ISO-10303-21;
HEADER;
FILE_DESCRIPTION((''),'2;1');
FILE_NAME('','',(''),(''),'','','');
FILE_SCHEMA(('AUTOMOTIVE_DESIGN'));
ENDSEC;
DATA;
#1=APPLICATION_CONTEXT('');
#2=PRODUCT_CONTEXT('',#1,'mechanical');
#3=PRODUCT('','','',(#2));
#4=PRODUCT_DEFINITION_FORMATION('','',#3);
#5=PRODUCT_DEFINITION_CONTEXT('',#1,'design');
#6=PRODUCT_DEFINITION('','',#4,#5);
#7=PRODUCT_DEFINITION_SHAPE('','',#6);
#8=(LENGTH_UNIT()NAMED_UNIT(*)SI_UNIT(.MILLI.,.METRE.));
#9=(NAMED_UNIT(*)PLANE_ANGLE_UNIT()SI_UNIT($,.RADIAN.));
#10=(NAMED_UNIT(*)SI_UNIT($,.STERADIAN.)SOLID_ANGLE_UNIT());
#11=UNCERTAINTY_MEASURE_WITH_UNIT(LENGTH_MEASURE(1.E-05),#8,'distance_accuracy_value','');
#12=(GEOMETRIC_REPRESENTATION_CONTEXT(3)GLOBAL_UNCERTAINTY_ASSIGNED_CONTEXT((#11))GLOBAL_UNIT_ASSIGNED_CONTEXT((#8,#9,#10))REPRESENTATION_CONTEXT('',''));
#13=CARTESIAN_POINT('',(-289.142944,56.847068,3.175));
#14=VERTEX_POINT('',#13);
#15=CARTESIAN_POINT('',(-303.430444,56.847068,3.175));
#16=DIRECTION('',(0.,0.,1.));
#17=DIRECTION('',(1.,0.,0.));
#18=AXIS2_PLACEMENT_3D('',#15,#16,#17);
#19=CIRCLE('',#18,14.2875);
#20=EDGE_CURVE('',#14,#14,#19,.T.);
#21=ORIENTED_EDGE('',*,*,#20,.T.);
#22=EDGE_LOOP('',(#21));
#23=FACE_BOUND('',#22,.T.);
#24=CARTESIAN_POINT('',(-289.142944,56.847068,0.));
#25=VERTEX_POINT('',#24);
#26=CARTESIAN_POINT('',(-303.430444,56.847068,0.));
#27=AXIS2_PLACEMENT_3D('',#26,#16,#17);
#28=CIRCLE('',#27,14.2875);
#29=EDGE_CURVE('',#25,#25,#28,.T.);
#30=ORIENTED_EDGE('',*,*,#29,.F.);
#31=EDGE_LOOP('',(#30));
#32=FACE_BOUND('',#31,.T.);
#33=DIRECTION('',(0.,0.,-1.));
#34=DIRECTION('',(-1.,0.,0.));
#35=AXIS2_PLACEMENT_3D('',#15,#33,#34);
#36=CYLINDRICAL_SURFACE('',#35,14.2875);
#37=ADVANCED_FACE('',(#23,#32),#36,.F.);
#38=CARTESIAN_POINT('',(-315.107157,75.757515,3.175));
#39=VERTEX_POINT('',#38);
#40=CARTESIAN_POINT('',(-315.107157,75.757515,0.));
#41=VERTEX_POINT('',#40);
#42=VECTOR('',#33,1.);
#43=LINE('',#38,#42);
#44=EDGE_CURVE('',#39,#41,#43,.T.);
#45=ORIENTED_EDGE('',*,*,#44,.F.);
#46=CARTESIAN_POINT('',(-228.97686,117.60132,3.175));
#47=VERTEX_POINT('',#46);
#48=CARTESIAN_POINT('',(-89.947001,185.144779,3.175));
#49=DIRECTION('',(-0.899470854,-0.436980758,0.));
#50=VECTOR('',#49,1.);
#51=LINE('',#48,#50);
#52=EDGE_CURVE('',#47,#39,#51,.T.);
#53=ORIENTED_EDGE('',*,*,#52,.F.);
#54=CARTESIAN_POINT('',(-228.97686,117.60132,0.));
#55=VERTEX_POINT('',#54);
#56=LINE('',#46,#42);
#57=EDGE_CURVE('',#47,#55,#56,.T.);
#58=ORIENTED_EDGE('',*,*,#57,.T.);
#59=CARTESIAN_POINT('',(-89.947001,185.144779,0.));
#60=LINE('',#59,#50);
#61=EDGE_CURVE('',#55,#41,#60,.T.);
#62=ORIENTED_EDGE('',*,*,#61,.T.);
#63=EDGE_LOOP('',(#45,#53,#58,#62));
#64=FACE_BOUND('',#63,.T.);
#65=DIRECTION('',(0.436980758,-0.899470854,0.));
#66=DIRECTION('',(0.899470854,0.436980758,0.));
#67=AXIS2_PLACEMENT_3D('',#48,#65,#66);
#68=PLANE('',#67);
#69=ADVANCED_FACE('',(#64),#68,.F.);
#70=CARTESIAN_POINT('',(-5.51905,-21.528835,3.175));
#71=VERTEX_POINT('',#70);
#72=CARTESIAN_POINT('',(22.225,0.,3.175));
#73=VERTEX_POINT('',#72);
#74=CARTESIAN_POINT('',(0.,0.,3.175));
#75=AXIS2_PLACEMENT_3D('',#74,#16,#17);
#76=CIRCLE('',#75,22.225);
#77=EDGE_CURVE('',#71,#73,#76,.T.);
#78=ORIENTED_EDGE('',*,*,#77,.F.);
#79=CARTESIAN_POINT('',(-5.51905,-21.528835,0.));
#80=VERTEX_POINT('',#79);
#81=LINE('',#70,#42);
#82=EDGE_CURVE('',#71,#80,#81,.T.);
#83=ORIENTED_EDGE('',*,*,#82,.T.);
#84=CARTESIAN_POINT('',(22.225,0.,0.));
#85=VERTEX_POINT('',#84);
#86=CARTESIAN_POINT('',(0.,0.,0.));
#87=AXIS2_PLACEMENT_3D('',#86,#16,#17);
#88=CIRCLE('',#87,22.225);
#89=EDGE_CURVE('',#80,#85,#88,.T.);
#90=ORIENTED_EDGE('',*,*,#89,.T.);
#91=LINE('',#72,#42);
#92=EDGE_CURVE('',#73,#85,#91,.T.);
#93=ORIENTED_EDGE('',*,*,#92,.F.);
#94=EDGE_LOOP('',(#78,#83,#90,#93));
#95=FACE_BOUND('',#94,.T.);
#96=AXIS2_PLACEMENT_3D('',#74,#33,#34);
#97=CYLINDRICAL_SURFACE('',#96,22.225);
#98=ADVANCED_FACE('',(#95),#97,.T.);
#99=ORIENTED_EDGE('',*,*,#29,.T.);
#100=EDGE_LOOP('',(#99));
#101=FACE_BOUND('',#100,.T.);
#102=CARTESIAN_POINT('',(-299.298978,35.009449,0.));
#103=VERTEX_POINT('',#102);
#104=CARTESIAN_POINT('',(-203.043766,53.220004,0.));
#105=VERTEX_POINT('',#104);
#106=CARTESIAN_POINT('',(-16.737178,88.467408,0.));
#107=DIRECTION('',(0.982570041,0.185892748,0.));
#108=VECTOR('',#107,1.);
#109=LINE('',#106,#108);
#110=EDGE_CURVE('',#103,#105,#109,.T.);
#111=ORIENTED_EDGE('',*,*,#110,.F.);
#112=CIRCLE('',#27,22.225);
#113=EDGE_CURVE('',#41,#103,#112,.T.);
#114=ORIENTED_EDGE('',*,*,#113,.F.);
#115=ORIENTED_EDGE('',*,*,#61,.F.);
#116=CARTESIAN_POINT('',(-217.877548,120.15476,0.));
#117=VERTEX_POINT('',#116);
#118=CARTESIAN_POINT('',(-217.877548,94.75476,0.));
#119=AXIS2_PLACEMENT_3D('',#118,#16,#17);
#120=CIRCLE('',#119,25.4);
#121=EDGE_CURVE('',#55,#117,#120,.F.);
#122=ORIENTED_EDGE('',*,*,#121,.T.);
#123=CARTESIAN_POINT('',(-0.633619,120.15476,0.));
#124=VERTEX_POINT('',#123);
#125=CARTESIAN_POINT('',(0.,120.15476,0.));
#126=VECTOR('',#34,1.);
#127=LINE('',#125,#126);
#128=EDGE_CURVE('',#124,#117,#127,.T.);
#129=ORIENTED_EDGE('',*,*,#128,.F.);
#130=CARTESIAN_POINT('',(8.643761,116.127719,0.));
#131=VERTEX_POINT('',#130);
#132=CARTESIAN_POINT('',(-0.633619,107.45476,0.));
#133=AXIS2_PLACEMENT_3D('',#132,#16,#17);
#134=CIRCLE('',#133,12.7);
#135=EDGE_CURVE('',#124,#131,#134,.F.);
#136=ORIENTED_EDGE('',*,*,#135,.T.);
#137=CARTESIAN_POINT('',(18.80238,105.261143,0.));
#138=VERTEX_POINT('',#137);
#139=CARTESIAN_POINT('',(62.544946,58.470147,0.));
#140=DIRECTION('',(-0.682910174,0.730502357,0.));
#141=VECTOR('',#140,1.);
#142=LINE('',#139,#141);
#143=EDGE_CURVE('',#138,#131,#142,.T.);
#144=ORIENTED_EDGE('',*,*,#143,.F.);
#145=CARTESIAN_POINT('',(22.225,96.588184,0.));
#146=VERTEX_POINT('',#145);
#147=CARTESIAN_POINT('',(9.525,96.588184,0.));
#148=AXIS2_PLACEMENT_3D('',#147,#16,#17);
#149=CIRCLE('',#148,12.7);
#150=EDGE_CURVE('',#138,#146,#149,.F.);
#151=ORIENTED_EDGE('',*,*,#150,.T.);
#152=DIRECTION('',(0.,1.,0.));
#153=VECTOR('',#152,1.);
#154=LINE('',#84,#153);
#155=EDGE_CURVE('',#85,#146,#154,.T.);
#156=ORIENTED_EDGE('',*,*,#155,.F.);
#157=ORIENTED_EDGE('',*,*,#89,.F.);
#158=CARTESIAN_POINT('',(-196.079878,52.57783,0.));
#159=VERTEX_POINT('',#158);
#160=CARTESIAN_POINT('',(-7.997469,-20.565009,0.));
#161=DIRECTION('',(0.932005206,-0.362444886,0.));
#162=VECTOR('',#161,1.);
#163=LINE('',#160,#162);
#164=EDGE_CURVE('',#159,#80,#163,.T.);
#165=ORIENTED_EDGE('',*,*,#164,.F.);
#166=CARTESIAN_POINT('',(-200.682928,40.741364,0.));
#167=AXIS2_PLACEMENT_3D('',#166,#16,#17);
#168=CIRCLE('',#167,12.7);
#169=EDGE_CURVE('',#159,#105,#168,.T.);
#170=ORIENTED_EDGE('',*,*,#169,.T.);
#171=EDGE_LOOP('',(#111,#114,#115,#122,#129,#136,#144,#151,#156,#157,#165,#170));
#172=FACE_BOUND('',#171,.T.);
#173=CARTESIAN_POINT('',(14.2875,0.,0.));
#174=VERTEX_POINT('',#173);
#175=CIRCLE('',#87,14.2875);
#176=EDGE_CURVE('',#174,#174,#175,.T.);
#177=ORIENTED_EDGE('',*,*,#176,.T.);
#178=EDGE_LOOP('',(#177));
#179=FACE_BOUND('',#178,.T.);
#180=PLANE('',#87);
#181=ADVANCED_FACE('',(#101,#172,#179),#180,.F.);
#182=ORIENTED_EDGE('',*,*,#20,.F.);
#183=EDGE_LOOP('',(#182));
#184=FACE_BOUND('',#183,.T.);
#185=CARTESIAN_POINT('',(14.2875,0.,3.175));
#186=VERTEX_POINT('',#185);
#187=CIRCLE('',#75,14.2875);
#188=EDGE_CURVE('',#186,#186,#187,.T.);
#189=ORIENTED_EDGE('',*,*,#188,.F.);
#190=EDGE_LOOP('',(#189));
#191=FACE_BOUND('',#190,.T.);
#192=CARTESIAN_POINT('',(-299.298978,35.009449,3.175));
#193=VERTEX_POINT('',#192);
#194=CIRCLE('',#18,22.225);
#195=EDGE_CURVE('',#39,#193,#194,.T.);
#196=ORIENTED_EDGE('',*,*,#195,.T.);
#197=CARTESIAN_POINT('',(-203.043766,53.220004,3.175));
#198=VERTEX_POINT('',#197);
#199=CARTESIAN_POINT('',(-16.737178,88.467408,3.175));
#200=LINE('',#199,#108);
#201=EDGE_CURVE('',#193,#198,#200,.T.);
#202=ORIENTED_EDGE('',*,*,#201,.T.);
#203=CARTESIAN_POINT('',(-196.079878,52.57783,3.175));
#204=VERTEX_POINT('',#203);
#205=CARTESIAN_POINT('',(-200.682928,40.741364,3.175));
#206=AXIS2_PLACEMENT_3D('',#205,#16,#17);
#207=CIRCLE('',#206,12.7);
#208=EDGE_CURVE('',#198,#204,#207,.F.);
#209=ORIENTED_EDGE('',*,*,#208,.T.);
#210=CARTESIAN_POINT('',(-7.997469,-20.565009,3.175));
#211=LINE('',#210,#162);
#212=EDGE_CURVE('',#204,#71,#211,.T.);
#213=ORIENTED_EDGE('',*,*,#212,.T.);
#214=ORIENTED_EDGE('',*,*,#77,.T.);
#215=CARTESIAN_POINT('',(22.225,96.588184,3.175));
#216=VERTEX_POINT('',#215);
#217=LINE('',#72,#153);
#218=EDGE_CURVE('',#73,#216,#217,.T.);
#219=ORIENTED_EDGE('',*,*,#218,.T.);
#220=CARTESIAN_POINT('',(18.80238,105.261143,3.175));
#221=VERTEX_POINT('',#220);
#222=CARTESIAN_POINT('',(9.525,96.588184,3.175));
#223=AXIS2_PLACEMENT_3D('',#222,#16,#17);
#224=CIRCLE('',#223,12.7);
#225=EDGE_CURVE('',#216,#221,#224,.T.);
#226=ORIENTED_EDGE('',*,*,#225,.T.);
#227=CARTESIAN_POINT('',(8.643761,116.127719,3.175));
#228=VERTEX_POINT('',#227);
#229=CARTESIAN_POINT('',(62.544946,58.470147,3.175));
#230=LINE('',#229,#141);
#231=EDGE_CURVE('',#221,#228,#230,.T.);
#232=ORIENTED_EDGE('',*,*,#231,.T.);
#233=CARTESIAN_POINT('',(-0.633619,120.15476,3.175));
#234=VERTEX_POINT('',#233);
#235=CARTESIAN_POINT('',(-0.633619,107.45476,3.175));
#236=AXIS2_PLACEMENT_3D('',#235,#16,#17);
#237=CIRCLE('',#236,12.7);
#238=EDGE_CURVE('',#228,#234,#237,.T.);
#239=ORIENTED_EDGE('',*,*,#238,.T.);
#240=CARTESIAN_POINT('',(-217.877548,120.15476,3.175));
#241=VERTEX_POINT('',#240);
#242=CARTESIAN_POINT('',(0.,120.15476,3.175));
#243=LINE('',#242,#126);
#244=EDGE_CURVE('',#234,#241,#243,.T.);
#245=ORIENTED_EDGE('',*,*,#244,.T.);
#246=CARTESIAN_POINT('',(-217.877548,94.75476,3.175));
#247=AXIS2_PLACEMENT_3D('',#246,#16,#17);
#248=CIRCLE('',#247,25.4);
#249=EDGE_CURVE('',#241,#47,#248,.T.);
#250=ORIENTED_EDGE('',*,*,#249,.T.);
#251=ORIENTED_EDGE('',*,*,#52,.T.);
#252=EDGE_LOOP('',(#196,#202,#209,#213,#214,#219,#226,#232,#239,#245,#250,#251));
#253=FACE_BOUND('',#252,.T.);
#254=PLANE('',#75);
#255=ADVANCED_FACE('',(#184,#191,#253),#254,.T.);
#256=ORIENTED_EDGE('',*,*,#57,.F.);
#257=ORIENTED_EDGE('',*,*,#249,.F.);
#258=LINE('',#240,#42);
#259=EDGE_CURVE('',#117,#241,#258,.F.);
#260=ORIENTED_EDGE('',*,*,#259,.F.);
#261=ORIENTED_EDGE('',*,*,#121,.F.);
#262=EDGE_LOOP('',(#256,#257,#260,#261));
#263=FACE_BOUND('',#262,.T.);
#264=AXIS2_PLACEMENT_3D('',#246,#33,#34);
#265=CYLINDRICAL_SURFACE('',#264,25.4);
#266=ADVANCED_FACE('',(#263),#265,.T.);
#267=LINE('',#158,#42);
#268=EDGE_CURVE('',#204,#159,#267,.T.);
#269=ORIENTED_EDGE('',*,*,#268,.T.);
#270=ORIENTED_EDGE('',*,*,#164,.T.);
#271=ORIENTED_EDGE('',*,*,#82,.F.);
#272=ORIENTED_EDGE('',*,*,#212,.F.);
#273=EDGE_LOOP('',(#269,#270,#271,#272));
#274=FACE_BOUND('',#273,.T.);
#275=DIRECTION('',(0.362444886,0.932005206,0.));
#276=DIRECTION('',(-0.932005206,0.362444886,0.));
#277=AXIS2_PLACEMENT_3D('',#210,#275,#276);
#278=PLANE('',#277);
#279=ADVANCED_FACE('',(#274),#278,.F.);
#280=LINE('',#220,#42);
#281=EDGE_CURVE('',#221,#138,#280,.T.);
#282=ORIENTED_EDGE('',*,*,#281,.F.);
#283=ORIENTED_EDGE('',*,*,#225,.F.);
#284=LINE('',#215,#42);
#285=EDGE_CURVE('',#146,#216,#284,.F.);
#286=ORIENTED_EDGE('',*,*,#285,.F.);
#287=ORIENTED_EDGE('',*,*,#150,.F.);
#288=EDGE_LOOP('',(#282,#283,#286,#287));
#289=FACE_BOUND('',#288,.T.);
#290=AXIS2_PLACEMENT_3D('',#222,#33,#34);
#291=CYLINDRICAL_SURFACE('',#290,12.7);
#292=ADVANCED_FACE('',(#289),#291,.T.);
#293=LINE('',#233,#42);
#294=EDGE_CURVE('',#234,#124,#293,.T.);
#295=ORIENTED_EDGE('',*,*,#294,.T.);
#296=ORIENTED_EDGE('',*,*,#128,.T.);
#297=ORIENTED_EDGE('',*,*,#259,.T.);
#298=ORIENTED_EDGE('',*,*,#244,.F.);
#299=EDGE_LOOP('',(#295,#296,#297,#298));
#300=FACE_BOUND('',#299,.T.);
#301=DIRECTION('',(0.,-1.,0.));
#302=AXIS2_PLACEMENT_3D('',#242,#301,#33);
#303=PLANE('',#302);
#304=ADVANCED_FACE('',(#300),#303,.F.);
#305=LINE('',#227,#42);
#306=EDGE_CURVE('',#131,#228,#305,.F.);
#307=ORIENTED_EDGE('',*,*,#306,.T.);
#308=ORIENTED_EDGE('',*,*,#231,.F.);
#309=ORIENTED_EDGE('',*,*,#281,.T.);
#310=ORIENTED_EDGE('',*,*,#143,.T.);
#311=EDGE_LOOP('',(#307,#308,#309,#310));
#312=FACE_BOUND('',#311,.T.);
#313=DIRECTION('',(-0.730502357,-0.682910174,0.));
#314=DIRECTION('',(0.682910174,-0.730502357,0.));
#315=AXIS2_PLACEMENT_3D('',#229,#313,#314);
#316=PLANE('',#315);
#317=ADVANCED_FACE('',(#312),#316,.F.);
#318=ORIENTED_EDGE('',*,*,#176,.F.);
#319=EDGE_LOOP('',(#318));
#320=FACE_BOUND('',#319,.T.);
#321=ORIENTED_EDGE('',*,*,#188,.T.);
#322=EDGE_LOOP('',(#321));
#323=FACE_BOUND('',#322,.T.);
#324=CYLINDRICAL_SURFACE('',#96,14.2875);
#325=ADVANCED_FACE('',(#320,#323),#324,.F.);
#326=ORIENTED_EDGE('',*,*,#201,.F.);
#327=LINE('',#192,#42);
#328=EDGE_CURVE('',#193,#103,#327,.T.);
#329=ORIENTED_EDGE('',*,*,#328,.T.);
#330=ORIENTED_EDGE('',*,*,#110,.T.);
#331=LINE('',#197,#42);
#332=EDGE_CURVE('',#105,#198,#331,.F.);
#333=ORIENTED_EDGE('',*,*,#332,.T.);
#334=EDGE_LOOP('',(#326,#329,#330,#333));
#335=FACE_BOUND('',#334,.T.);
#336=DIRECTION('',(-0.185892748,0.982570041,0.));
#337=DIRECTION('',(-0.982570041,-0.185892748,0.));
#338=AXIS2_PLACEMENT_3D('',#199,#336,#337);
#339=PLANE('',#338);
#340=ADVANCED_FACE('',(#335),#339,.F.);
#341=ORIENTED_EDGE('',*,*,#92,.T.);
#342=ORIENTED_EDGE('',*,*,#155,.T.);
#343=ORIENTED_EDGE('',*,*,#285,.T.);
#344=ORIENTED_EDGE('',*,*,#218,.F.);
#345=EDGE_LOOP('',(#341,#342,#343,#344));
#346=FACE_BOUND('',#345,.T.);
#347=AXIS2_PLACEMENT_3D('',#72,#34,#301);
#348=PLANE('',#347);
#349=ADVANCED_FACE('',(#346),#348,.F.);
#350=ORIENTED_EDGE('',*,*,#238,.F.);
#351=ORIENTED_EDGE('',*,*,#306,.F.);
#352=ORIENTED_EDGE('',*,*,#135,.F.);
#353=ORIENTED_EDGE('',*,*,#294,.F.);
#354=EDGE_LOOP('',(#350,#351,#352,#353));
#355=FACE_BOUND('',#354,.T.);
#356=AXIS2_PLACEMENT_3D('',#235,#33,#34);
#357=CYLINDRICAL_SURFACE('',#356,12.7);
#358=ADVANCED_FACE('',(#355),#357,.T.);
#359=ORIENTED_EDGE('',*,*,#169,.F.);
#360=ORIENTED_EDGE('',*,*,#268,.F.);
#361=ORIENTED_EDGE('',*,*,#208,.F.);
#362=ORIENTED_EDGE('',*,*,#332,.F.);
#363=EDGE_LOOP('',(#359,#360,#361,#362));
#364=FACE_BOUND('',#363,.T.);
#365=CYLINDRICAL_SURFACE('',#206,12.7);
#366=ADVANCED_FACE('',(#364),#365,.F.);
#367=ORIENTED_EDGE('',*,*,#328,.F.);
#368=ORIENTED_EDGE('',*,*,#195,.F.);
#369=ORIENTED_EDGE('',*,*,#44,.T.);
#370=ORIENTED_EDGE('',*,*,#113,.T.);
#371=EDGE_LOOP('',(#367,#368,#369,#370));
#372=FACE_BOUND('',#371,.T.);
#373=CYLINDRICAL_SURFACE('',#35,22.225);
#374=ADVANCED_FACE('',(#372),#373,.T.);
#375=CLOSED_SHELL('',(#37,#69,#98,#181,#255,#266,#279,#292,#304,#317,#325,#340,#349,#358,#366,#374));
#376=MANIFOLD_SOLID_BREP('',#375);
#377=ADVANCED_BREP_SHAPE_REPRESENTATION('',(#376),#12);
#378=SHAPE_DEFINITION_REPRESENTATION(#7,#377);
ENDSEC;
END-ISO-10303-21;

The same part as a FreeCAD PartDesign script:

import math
import FreeCAD as App
import Part
import Sketcher

V = App.Vector
Q = App.Units.Quantity


def edges_at(feature, points):
    """Names of the edges that pass closest to the given points."""
    edges = feature.Shape.Edges
    near = lambda p: min(range(len(edges)), key=lambda i: edges[i].distToShape(Part.Vertex(*p))[0])
    return sorted({f"Edge{near(p) + 1}" for p in points})

doc = App.newDocument("Part")
body = doc.addObject("PartDesign::Body", "Body")

sketch1 = doc.addObject("Sketcher::SketchObject", "Sketch")
body.addObject(sketch1)
sketch1.AttachmentSupport = (doc.XY_Plane, [""])
sketch1.MapMode = "FlatFace"
sketch1.addGeometry([
    Part.ArcOfCircle(Part.Circle(V(0, 0, 0), V(0, 0, 1), 22.225), math.radians(-104.378487), math.radians(0)),
    Part.LineSegment(V(22.225, 0, 0), V(22.225, 101.6, 0)),
    Part.LineSegment(V(22.225, 101.6, 0), V(4.879082, 120.15476, 0)),
    Part.LineSegment(V(4.879082, 120.15476, 0), V(-223.720918, 120.15476, 0)),
    Part.LineSegment(V(-223.720918, 120.15476, 0), V(-311.078677, 77.71463, 0)),
    Part.LineSegment(V(-311.078677, 77.71463, 0), V(-315.107157, 75.757515, 0)),
    Part.ArcOfCircle(Part.Circle(V(-303.430444, 56.847068, 0), V(0, 0, 1), 22.225), math.radians(121.694259), math.radians(280.713186)),
    Part.LineSegment(V(-299.298978, 35.009449, 0), V(-199.469862, 53.896152, 0)),
    Part.LineSegment(V(-199.469862, 53.896152, 0), V(-5.51905, -21.528835, 0)),
    Part.Circle(V(0, 0, 0), V(0, 0, 1), 14.2875),
    Part.Circle(V(-303.430444, 56.847068, 0), V(0, 0, 1), 14.2875),
], False)
sketch1.addConstraint([
    Sketcher.Constraint("Tangent", 0, 2, 1, 1),
    Sketcher.Constraint("Coincident", 1, 2, 2, 1),
    Sketcher.Constraint("Coincident", 2, 2, 3, 1),
    Sketcher.Constraint("Coincident", 3, 2, 4, 1),
    Sketcher.Constraint("Coincident", 4, 2, 5, 1),
    Sketcher.Constraint("Coincident", 5, 2, 6, 1),
    Sketcher.Constraint("Tangent", 6, 2, 7, 1),
    Sketcher.Constraint("Coincident", 7, 2, 8, 1),
    Sketcher.Constraint("Coincident", 8, 2, 0, 1),
    Sketcher.Constraint("Vertical", 1),
    Sketcher.Constraint("Horizontal", 3),
    Sketcher.Constraint("Coincident", 0, 3, -1, 1),
    Sketcher.Constraint("Coincident", 9, 3, -1, 1),
    Sketcher.Constraint("Coincident", 10, 3, 6, 3),
    Sketcher.Constraint("Equal", 0, 6),
    Sketcher.Constraint("Equal", 9, 10),
    Sketcher.Constraint("Parallel", 4, 5),
    Sketcher.Constraint("DistanceX", 3, 2, 3, 1, Q("9 in")),
    Sketcher.Constraint("DistanceY", 1, 1, 1, 2, Q("4 in")),
    Sketcher.Constraint("Distance", 2, Q("1 in")),
    Sketcher.Constraint("Distance", 7, Q("4 in")),
    Sketcher.Constraint("Diameter", 9, Q("1.125 in")),
    Sketcher.Constraint("Radius", 0, Q("0.875 in")),
    Sketcher.Constraint("DistanceX", 4, 2, 6, 2, Q("11.779699 mm")),
    Sketcher.Constraint("DistanceX", -1, 1, 2, 2, Q("4.879082 mm")),
    Sketcher.Constraint("DistanceY", -1, 1, 4, 2, Q("77.71463 mm")),
    Sketcher.Constraint("DistanceX", 6, 2, -1, 1, Q("299.298978 mm")),
    Sketcher.Constraint("DistanceY", -1, 1, 6, 2, Q("35.009449 mm")),
    Sketcher.Constraint("DistanceX", 7, 2, -1, 1, Q("199.469862 mm")),
    Sketcher.Constraint("DistanceX", 8, 2, -1, 1, Q("5.51905 mm")),
])
pad1 = doc.addObject("PartDesign::Pad", "Pad")
body.addObject(pad1)
pad1.Profile = sketch1
pad1.Length = Q("0.125 in")
doc.recompute()

fillet = doc.addObject("PartDesign::Fillet", "Fillet")
body.addObject(fillet)
fillet.Base = (pad1, edges_at(pad1, [(-199.47, 53.896, 1.587)]))
fillet.Radius = Q("0.5 in")
doc.recompute()

fillet2 = doc.addObject("PartDesign::Fillet", "Fillet001")
body.addObject(fillet2)
fillet2.Base = (fillet, edges_at(fillet, [(-223.721, 120.155, 1.587)]))
fillet2.Radius = Q("1 in")
doc.recompute()

fillet3 = doc.addObject("PartDesign::Fillet", "Fillet002")
body.addObject(fillet3)
fillet3.Base = (fillet2, edges_at(fillet2, [(22.225, 101.6, 1.587)]))
fillet3.Radius = Q("0.5 in")
doc.recompute()

fillet4 = doc.addObject("PartDesign::Fillet", "Fillet003")
body.addObject(fillet4)
fillet4.Base = (fillet3, edges_at(fillet3, [(4.879, 120.155, 1.587)]))
fillet4.Radius = Q("0.5 in")

doc.recompute()
